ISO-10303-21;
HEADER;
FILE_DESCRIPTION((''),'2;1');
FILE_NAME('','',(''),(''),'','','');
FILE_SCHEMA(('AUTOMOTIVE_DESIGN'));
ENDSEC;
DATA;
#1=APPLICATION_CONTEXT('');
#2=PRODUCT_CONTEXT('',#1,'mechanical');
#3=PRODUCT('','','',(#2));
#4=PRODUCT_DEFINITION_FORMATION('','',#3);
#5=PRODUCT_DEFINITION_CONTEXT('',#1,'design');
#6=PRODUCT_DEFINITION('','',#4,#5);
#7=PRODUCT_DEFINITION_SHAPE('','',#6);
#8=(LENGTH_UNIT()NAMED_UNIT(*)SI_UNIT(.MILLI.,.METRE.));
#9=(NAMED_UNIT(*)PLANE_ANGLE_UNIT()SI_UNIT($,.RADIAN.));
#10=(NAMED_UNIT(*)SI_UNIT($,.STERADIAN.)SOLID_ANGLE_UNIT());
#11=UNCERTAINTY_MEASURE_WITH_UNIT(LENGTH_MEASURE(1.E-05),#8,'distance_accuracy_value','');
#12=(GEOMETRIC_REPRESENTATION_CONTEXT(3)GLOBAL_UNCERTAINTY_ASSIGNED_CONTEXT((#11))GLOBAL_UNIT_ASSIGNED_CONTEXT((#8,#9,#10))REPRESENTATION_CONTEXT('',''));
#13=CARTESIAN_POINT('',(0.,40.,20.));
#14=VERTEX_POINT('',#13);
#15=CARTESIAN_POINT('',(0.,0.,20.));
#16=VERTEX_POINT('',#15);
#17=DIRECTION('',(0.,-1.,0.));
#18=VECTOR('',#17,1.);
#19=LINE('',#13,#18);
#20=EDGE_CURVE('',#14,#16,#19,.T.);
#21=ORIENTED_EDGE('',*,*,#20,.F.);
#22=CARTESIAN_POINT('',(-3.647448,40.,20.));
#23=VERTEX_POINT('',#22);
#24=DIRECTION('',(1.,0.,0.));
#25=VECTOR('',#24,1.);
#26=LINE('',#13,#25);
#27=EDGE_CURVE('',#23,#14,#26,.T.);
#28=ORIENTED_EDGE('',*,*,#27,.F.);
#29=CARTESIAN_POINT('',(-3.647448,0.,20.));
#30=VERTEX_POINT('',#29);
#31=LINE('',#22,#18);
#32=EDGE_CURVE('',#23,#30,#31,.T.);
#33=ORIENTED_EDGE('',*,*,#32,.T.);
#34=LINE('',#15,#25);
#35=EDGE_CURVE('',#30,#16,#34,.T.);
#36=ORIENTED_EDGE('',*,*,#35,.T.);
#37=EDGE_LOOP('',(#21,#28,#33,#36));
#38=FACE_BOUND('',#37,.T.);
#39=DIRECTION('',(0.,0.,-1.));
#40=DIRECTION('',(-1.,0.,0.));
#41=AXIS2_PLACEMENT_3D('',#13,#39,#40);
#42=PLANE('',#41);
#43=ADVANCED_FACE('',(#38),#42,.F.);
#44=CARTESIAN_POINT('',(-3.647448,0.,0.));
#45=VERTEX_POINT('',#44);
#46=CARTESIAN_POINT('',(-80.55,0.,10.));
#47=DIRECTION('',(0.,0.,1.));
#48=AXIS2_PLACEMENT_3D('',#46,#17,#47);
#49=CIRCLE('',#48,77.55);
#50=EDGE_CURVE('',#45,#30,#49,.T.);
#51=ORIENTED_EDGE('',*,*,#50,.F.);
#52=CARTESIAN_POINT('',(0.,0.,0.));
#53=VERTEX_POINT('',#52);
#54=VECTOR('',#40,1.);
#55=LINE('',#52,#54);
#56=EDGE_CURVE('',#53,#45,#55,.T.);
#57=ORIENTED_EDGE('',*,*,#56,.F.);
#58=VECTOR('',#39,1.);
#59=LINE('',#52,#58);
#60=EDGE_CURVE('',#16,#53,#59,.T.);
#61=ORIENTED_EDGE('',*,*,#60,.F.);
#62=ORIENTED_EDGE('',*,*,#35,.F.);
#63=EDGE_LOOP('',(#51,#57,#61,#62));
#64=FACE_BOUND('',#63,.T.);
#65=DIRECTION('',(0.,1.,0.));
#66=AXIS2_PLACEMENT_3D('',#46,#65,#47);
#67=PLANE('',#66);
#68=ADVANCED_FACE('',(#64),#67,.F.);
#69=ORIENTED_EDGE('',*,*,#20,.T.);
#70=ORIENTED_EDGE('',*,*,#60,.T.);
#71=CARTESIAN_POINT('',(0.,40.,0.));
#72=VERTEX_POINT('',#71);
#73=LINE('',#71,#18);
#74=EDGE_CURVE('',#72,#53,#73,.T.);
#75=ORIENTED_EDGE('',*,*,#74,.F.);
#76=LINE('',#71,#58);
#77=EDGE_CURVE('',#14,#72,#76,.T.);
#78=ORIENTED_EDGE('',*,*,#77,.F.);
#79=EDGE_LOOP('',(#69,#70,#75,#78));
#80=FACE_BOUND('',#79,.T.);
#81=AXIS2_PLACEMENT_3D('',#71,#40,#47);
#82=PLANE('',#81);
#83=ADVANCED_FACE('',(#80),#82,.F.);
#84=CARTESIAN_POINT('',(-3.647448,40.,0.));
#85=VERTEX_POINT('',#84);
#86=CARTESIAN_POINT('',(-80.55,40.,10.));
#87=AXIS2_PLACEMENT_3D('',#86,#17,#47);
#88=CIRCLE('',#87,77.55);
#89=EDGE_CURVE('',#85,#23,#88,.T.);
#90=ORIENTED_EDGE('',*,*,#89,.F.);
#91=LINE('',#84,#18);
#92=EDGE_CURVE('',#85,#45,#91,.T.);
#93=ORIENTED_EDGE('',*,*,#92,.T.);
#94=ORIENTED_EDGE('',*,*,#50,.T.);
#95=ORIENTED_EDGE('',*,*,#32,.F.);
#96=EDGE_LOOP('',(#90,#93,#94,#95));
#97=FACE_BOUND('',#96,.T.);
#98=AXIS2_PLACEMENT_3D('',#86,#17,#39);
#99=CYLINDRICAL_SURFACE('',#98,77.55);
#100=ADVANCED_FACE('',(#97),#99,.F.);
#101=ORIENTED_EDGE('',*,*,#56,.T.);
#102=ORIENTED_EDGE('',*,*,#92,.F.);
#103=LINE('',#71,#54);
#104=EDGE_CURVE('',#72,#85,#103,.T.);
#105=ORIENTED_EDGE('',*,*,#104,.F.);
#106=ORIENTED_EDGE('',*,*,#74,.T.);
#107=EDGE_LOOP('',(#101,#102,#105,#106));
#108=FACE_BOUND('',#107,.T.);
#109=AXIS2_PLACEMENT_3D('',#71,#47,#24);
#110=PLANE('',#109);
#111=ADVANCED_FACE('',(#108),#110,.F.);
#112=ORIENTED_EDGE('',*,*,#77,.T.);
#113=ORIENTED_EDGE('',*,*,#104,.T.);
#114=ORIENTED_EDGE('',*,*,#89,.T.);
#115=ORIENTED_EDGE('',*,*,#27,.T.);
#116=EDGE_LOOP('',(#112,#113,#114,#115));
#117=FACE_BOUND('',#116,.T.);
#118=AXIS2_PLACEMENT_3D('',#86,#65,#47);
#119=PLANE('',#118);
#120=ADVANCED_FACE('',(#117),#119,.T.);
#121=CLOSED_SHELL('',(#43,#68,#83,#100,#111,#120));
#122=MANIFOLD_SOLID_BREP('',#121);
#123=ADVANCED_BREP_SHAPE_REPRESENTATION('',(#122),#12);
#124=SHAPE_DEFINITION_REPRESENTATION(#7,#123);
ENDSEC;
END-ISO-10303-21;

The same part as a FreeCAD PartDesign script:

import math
import FreeCAD as App
import Part
import Sketcher

doc = App.newDocument("Part")
body = doc.addObject("PartDesign::Body", "Body")

sketch1 = doc.addObject("Sketcher::SketchObject", "Sketch")
body.addObject(sketch1)
sketch1.AttachmentSupport = (doc.XZ_Plane, [""])
sketch1.MapMode = "FlatFace"
sketch1.addGeometry([
    Part.LineSegment(App.Vector(0, 20, 0), App.Vector(0, 0, 0)),
    Part.LineSegment(App.Vector(0, 0, 0), App.Vector(-3.6, 0, 0)),
    Part.ArcOfCircle(Part.Circle(App.Vector(-80.5, 10, 0), App.Vector(0, 0, 1), 77.5), math.radians(-7.41), math.radians(7.41)),
    Part.LineSegment(App.Vector(-3.6, 20, 0), App.Vector(0, 20, 0)),
], False)
sketch1.addConstraint([
    Sketcher.Constraint("Coincident", 0, 2, 1, 1),
    Sketcher.Constraint("Coincident", 1, 2, 2, 1),
    Sketcher.Constraint("Coincident", 2, 2, 3, 1),
    Sketcher.Constraint("Coincident", 3, 2, 0, 1),
    Sketcher.Constraint("Vertical", 0),
    Sketcher.Constraint("Horizontal", 1),
    Sketcher.Constraint("Horizontal", 3),
    Sketcher.Constraint("Coincident", 0, 2, -1, 1),
    Sketcher.Constraint("Vertical", 1, 2, 2, 2),
    Sketcher.Constraint("DistanceY", 0, 2, 0, 1, 20.0),
    Sketcher.Constraint("Radius", 2, 77.55),
    Sketcher.Constraint("DistanceX", 2, 3, -1, 1, 80.55),
])
pad1 = doc.addObject("PartDesign::Pad", "Pad")
body.addObject(pad1)
pad1.Profile = sketch1
pad1.Length = 40
pad1.Reversed = True

doc.recompute()
